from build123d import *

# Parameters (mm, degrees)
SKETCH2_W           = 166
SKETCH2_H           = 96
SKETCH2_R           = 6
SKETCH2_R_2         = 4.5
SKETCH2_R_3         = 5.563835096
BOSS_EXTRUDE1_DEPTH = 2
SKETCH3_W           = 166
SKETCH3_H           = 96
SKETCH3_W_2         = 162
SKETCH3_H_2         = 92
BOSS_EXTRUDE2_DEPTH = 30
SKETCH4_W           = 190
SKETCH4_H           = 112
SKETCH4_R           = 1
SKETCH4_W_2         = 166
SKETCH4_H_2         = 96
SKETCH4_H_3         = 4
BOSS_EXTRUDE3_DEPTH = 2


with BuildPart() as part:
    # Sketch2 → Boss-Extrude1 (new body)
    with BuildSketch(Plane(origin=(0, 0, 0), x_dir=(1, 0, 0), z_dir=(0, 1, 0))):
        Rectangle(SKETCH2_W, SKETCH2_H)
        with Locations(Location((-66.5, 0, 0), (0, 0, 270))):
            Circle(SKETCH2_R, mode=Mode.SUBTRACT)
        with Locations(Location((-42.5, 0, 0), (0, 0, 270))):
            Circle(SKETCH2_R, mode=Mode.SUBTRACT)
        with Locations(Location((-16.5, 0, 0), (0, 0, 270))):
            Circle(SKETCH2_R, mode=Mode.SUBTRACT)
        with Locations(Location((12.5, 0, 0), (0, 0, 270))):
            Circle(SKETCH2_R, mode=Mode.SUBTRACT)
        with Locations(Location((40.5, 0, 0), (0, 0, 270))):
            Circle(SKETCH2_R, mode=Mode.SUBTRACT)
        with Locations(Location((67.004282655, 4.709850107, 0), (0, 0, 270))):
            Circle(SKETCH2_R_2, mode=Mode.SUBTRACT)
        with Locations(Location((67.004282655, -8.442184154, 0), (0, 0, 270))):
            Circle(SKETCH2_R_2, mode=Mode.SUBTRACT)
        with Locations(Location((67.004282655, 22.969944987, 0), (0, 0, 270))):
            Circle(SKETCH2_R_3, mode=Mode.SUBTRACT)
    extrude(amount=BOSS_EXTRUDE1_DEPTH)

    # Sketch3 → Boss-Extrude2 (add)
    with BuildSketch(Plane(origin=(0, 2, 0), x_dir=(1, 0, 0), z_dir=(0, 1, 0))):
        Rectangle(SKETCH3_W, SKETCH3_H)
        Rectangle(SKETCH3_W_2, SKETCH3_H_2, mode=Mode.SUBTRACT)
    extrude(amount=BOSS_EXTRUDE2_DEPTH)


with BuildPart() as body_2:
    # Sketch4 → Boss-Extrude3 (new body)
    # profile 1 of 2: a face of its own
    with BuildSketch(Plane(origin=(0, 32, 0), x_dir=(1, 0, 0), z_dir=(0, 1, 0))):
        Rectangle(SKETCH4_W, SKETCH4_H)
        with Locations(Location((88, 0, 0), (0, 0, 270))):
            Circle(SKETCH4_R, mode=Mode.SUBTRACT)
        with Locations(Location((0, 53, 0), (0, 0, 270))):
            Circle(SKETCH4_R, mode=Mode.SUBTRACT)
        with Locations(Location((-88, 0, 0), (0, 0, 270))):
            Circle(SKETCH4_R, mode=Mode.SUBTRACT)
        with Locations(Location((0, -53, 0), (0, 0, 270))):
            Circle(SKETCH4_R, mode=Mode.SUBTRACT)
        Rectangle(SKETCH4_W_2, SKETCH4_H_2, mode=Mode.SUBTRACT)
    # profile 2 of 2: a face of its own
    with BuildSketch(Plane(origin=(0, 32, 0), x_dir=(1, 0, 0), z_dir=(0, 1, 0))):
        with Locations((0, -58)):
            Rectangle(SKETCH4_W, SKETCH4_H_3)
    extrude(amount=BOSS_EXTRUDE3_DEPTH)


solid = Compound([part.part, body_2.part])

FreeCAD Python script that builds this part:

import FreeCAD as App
import Part
import Sketcher

doc = App.newDocument("Part")
body = doc.addObject("PartDesign::Body", "Body")

sketch1 = body.newObject("Sketcher::SketchObject", "Sketch")
sketch1.AttachmentSupport = (doc.getObject("XZ_Plane"), [""])
sketch1.MapMode = "FlatFace"
sketch1.addGeometry([
    Part.LineSegment(App.Vector(-83, -48, 0), App.Vector(-83, 48, 0)),
    Part.LineSegment(App.Vector(-83, 48, 0), App.Vector(83, 48, 0)),
    Part.LineSegment(App.Vector(83, 48, 0), App.Vector(83, -48, 0)),
    Part.LineSegment(App.Vector(83, -48, 0), App.Vector(-83, -48, 0)),
    Part.Circle(App.Vector(-66.5, 0, 0), App.Vector(0, 0, 1), 6),
    Part.Circle(App.Vector(-42.5, 0, 0), App.Vector(0, 0, 1), 6),
    Part.Circle(App.Vector(-16.5, 0, 0), App.Vector(0, 0, 1), 6),
    Part.Circle(App.Vector(67, 8.4, 0), App.Vector(0, 0, 1), 4.5),
    Part.Circle(App.Vector(12.5, 0, 0), App.Vector(0, 0, 1), 6),
    Part.Circle(App.Vector(40.5, 0, 0), App.Vector(0, 0, 1), 6),
    Part.Circle(App.Vector(67, -4.7, 0), App.Vector(0, 0, 1), 4.5),
    Part.Circle(App.Vector(67, -23, 0), App.Vector(0, 0, 1), 5.6),
], False)
sketch1.addConstraint([
    Sketcher.Constraint("Coincident", 0, 2, 1, 1),
    Sketcher.Constraint("Coincident", 1, 2, 2, 1),
    Sketcher.Constraint("Coincident", 2, 2, 3, 1),
    Sketcher.Constraint("Coincident", 3, 2, 0, 1),
    Sketcher.Constraint("Vertical", 0),
    Sketcher.Constraint("Horizontal", 1),
    Sketcher.Constraint("Vertical", 2),
    Sketcher.Constraint("Horizontal", 3),
    Sketcher.Constraint("Equal", 4, 5),
    Sketcher.Constraint("Equal", 5, 6),
    Sketcher.Constraint("Equal", 6, 8),
    Sketcher.Constraint("Equal", 8, 9),
    Sketcher.Constraint("Equal", 7, 10),
    Sketcher.Constraint("Symmetric", 0, 2, 2, 2, -1, 1),
    Sketcher.Constraint("PointOnObject", 4, 3, -1),
    Sketcher.Constraint("PointOnObject", 5, 3, -1),
    Sketcher.Constraint("PointOnObject", 6, 3, -1),
    Sketcher.Constraint("PointOnObject", 8, 3, -1),
    Sketcher.Constraint("PointOnObject", 9, 3, -1),
    Sketcher.Constraint("Vertical", 7, 3, 10, 3),
    Sketcher.Constraint("Vertical", 10, 3, 11, 3),
    Sketcher.Constraint("Diameter", 4, 12.0),
    Sketcher.Constraint("Diameter", 7, 9.0),
    Sketcher.Constraint("DistanceX", 1, 1, 1, 2, 166.0),
    Sketcher.Constraint("DistanceY", 0, 1, 0, 2, 96.0),
    Sketcher.Constraint("DistanceX", 4, 3, 5, 3, 24.0),
    Sketcher.Constraint("DistanceX", 5, 3, 6, 3, 26.0),
    Sketcher.Constraint("DistanceX", 6, 3, 8, 3, 29.0),
    Sketcher.Constraint("DistanceX", 8, 3, 9, 3, 28.0),
    Sketcher.Constraint("DistanceX", 4, 3, -1, 1, 66.5),
    Sketcher.Constraint("Diameter", 11, 11.12767),
    Sketcher.Constraint("DistanceY", 10, 3, -1, 1, 4.70985),
    Sketcher.Constraint("DistanceY", 11, 3, 7, 3, 31.412129),
    Sketcher.Constraint("DistanceX", -1, 1, 7, 3, 67.004283),
    Sketcher.Constraint("DistanceY", -1, 1, 7, 3, 8.442184),
])
pad1 = body.newObject("PartDesign::Pad", "Pad")
pad1.Profile = sketch1
pad1.Length = 2
pad1.Reversed = True

sketch2 = body.newObject("Sketcher::SketchObject", "Sketch001")
sketch2.AttachmentSupport = (doc.getObject("XZ_Plane"), [""])
sketch2.MapMode = "FlatFace"
sketch2.AttachmentOffset = App.Placement(App.Vector(0, 0, -2), App.Rotation())
sketch2.addGeometry([
    Part.LineSegment(App.Vector(-83, -48, 0), App.Vector(-83, 48, 0)),
    Part.LineSegment(App.Vector(-83, 48, 0), App.Vector(83, 48, 0)),
    Part.LineSegment(App.Vector(83, 48, 0), App.Vector(83, -48, 0)),
    Part.LineSegment(App.Vector(83, -48, 0), App.Vector(-83, -48, 0)),
    Part.LineSegment(App.Vector(81, 46, 0), App.Vector(-81, 46, 0)),
    Part.LineSegment(App.Vector(-81, 46, 0), App.Vector(-81, -46, 0)),
    Part.LineSegment(App.Vector(-81, -46, 0), App.Vector(81, -46, 0)),
    Part.LineSegment(App.Vector(81, -46, 0), App.Vector(81, 46, 0)),
], False)
sketch2.addConstraint([
    Sketcher.Constraint("Coincident", 0, 2, 1, 1),
    Sketcher.Constraint("Coincident", 1, 2, 2, 1),
    Sketcher.Constraint("Coincident", 2, 2, 3, 1),
    Sketcher.Constraint("Coincident", 3, 2, 0, 1),
    Sketcher.Constraint("Coincident", 4, 2, 5, 1),
    Sketcher.Constraint("Coincident", 5, 2, 6, 1),
    Sketcher.Constraint("Coincident", 6, 2, 7, 1),
    Sketcher.Constraint("Coincident", 7, 2, 4, 1),
    Sketcher.Constraint("Vertical", 0),
    Sketcher.Constraint("Horizontal", 1),
    Sketcher.Constraint("Vertical", 2),
    Sketcher.Constraint("Horizontal", 3),
    Sketcher.Constraint("Horizontal", 4),
    Sketcher.Constraint("Vertical", 5),
    Sketcher.Constraint("Horizontal", 6),
    Sketcher.Constraint("Vertical", 7),
    Sketcher.Constraint("Symmetric", 0, 2, 2, 2, -1, 1),
    Sketcher.Constraint("Symmetric", 4, 2, 6, 2, -1, 1),
    Sketcher.Constraint("DistanceX", 1, 1, 1, 2, 166.0),
    Sketcher.Constraint("DistanceX", 4, 2, 4, 1, 162.0),
    Sketcher.Constraint("DistanceY", 0, 1, 0, 2, 96.0),
    Sketcher.Constraint("DistanceY", 5, 2, 5, 1, 92.0),
])
pad2 = body.newObject("PartDesign::Pad", "Pad001")
pad2.Profile = sketch2
pad2.Length = 30
pad2.Reversed = True
body2 = doc.addObject("PartDesign::Body", "Body001")

sketch3 = body2.newObject("Sketcher::SketchObject", "Sketch002")
sketch3.AttachmentSupport = (doc.getObject("XZ_Plane001"), [""])
sketch3.MapMode = "FlatFace"
sketch3.AttachmentOffset = App.Placement(App.Vector(0, 0, -32), App.Rotation())
sketch3.addGeometry([
    Part.LineSegment(App.Vector(-95, -56, 0), App.Vector(-95, 60, 0)),
    Part.LineSegment(App.Vector(-95, 60, 0), App.Vector(95, 60, 0)),
    Part.LineSegment(App.Vector(95, 60, 0), App.Vector(95, -56, 0)),
    Part.LineSegment(App.Vector(95, -56, 0), App.Vector(-95, -56, 0)),
    Part.Circle(App.Vector(0, 53, 0), App.Vector(0, 0, 1), 1),
    Part.Circle(App.Vector(-88, 0, 0), App.Vector(0, 0, 1), 1),
    Part.LineSegment(App.Vector(83, 48, 0), App.Vector(-83, 48, 0)),
    Part.LineSegment(App.Vector(-83, 48, 0), App.Vector(-83, -48, 0)),
    Part.LineSegment(App.Vector(-83, -48, 0), App.Vector(83, -48, 0)),
    Part.LineSegment(App.Vector(83, -48, 0), App.Vector(83, 48, 0)),
    Part.Circle(App.Vector(88, 0, 0), App.Vector(0, 0, 1), 1),
    Part.Circle(App.Vector(0, -53, 0), App.Vector(0, 0, 1), 1),
], False)
sketch3.addConstraint([
    Sketcher.Constraint("Coincident", 0, 2, 1, 1),
    Sketcher.Constraint("Coincident", 1, 2, 2, 1),
    Sketcher.Constraint("Coincident", 2, 2, 3, 1),
    Sketcher.Constraint("Coincident", 3, 2, 0, 1),
    Sketcher.Constraint("Coincident", 6, 2, 7, 1),
    Sketcher.Constraint("Coincident", 7, 2, 8, 1),
    Sketcher.Constraint("Coincident", 8, 2, 9, 1),
    Sketcher.Constraint("Coincident", 9, 2, 6, 1),
    Sketcher.Constraint("Vertical", 0),
    Sketcher.Constraint("Horizontal", 1),
    Sketcher.Constraint("Vertical", 2),
    Sketcher.Constraint("Horizontal", 3),
    Sketcher.Constraint("Horizontal", 6),
    Sketcher.Constraint("Vertical", 7),
    Sketcher.Constraint("Horizontal", 8),
    Sketcher.Constraint("Vertical", 9),
    Sketcher.Constraint("Equal", 4, 5),
    Sketcher.Constraint("Equal", 5, 10),
    Sketcher.Constraint("Equal", 10, 11),
    Sketcher.Constraint("Symmetric", 5, 3, 10, 3, -1, 1),
    Sketcher.Constraint("Symmetric", 4, 3, 11, 3, -1, 1),
    Sketcher.Constraint("Symmetric", 6, 2, 8, 2, -1, 1),
    Sketcher.Constraint("PointOnObject", 4, 3, -2),
    Sketcher.Constraint("PointOnObject", 5, 3, -1),
    Sketcher.Constraint("Diameter", 4, 2.0),
    Sketcher.Constraint("DistanceX", 1, 1, 1, 2, 190.0),
    Sketcher.Constraint("DistanceX", 6, 2, 6, 1, 166.0),
    Sketcher.Constraint("DistanceY", 0, 1, 0, 2, 116.0),
    Sketcher.Constraint("DistanceY", 7, 2, 7, 1, 96.0),
    Sketcher.Constraint("DistanceY", -1, 1, 4, 3, 53.0),
    Sketcher.Constraint("DistanceX", 5, 3, -1, 1, 88.0),
    Sketcher.Constraint("DistanceX", 0, 2, -1, 1, 95.0),
    Sketcher.Constraint("DistanceY", -1, 1, 0, 2, 60.0),
])
pad3 = body2.newObject("PartDesign::Pad", "Pad002")
pad3.Profile = sketch3
pad3.Length = 2
pad3.Reversed = True

doc.recompute()
